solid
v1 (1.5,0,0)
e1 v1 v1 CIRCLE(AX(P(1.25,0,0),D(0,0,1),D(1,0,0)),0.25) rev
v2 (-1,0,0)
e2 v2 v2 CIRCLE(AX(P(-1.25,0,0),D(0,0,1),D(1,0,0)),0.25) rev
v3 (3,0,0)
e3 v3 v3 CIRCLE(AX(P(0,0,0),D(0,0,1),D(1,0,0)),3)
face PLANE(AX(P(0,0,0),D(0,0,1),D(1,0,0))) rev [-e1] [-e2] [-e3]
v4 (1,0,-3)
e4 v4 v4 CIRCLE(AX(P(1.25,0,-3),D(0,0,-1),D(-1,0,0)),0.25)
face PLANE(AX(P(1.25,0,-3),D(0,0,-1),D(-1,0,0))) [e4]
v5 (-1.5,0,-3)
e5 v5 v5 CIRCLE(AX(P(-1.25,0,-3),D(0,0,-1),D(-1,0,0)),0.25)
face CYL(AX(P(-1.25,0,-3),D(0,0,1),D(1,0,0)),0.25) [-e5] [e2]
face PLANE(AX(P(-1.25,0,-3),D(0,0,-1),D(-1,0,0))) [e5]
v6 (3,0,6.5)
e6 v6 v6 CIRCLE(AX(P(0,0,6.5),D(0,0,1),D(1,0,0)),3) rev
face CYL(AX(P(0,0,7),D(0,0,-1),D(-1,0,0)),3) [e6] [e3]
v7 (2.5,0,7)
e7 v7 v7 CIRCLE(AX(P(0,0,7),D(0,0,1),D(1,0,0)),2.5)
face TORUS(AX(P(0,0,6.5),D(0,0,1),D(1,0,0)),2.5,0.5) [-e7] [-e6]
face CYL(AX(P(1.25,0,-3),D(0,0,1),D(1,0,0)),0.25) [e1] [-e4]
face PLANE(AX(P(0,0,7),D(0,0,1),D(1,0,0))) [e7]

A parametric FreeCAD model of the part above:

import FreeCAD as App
import Part
import Sketcher
from FreeCAD import Vector
Q = App.Units.Quantity


def edges_at(feature, points):
    """Names of the edges that pass closest to the given points."""
    edges = feature.Shape.Edges
    near = lambda p: min(range(len(edges)), key=lambda i: edges[i].distToShape(Part.Vertex(*p))[0])
    return sorted({f"Edge{near(p) + 1}" for p in points})

doc = App.newDocument("Part")
body = doc.addObject("PartDesign::Body", "Body")

sketch1 = doc.addObject("Sketcher::SketchObject", "Sketch")
body.addObject(sketch1)
sketch1.AttachmentSupport = (doc.XY_Plane, [""])
sketch1.MapMode = "FlatFace"
sketch1.addGeometry(Part.Circle(Vector(0, 0, 0), Vector(0, 0, 1), 3), False)
sketch1.addConstraint(Sketcher.Constraint("Coincident", 0, 3, -1, 1))
sketch1.addConstraint(Sketcher.Constraint("Diameter", 0, Q("6 mm")))
pad1 = doc.addObject("PartDesign::Pad", "Pad")
body.addObject(pad1)
pad1.Profile = sketch1
pad1.Length = 7

sketch2 = doc.addObject("Sketcher::SketchObject", "Sketch001")
body.addObject(sketch2)
sketch2.AttachmentSupport = (doc.XY_Plane, [""])
sketch2.MapMode = "FlatFace"
sketch2.addGeometry(Part.Circle(Vector(1.25, 0, 0), Vector(0, 0, 1), 0.25), False)
sketch2.addGeometry(Part.Circle(Vector(-1.25, 0, 0), Vector(0, 0, 1), 0.25), False)
sketch2.addConstraint(Sketcher.Constraint("Equal", 0, 1))
sketch2.addConstraint(Sketcher.Constraint("Symmetric", 0, 3, 1, 3, -1, 1))
sketch2.addConstraint(Sketcher.Constraint("PointOnObject", 0, 3, -1))
sketch2.addConstraint(Sketcher.Constraint("Diameter", 0, Q("0.5 mm")))
sketch2.addConstraint(Sketcher.Constraint("DistanceX", 1, 3, 0, 3, Q("2.5 mm")))
pad2 = doc.addObject("PartDesign::Pad", "Pad001")
body.addObject(pad2)
pad2.Profile = sketch2
pad2.Length = 3
pad2.Reversed = True
doc.recompute()

fillet = doc.addObject("PartDesign::Fillet", "Fillet")
body.addObject(fillet)
fillet.Base = (pad2, edges_at(pad2, [(-3, 0, 7)]))
fillet.Radius = 0.5

doc.recompute()
